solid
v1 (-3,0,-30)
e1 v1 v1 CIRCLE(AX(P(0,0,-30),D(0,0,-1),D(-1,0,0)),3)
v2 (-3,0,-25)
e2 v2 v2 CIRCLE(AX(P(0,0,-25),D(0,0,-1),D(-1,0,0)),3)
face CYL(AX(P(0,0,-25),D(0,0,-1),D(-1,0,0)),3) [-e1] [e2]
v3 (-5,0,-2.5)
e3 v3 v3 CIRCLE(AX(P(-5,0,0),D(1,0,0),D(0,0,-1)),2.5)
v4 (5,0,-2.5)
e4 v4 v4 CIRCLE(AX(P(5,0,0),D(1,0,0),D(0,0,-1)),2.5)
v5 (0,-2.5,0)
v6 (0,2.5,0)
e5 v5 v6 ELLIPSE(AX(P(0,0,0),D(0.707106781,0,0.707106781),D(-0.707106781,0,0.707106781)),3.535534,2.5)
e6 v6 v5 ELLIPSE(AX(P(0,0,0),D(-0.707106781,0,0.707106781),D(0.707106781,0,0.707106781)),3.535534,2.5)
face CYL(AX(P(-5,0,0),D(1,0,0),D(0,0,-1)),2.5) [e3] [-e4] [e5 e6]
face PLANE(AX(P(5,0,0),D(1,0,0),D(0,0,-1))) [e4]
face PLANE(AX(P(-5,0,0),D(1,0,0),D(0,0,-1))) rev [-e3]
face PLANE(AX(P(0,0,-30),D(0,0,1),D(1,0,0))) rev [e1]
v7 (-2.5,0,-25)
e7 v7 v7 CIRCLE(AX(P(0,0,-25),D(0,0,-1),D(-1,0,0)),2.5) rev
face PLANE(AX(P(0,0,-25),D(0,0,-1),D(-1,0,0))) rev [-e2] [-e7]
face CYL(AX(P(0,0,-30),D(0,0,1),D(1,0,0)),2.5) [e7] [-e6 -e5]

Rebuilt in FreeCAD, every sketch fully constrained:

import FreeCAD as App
import Part
import Sketcher

V = App.Vector
Q = App.Units.Quantity

doc = App.newDocument("Part")
body = doc.addObject("PartDesign::Body", "Body")

# Sketch on XY plane
sketch1 = body.newObject("Sketcher::SketchObject", "Sketch")
sketch1.AttachmentSupport = (doc.getObject("XY_Plane"), [""])
sketch1.MapMode = "FlatFace"
sketch1.addGeometry(Part.Circle(V(0, 0, 0), V(0, 0, 1), 2.5), False)
sketch1.addConstraint([
    Sketcher.Constraint("Coincident", 0, 3, -1, 1),
    Sketcher.Constraint("Diameter", 0, Q("5 mm")),
])
pad1 = body.newObject("PartDesign::Pad", "Pad")
pad1.Profile = sketch1
pad1.Length = 30
pad1.Reversed = True

# Sketch on YZ plane
sketch2 = body.newObject("Sketcher::SketchObject", "Sketch001")
sketch2.AttachmentSupport = (doc.getObject("YZ_Plane"), [""])
sketch2.MapMode = "FlatFace"
sketch2.addGeometry(Part.Circle(V(0, 0, 0), V(0, 0, 1), 2.5), False)
sketch2.addConstraint([
    Sketcher.Constraint("Coincident", 0, 3, -1, 1),
    Sketcher.Constraint("Diameter", 0, Q("5 mm")),
])
pad2 = body.newObject("PartDesign::Pad", "Pad001")
pad2.Profile = sketch2
pad2.Type = "TwoLengths"
pad2.Length = 5
pad2.Length2 = 5

# Sketch on XY plane
sketch3 = body.newObject("Sketcher::SketchObject", "Sketch002")
sketch3.AttachmentSupport = (doc.getObject("XY_Plane"), [""])
sketch3.MapMode = "FlatFace"
sketch3.AttachmentOffset = App.Placement(V(0, 0, -30), App.Rotation())
sketch3.addGeometry(Part.Circle(V(0, 0, 0), V(0, 0, 1), 3), False)
sketch3.addConstraint([
    Sketcher.Constraint("Coincident", 0, 3, -1, 1),
    Sketcher.Constraint("Diameter", 0, Q("6 mm")),
])
pad3 = body.newObject("PartDesign::Pad", "Pad002")
pad3.Profile = sketch3
pad3.Length = 5

doc.recompute()
